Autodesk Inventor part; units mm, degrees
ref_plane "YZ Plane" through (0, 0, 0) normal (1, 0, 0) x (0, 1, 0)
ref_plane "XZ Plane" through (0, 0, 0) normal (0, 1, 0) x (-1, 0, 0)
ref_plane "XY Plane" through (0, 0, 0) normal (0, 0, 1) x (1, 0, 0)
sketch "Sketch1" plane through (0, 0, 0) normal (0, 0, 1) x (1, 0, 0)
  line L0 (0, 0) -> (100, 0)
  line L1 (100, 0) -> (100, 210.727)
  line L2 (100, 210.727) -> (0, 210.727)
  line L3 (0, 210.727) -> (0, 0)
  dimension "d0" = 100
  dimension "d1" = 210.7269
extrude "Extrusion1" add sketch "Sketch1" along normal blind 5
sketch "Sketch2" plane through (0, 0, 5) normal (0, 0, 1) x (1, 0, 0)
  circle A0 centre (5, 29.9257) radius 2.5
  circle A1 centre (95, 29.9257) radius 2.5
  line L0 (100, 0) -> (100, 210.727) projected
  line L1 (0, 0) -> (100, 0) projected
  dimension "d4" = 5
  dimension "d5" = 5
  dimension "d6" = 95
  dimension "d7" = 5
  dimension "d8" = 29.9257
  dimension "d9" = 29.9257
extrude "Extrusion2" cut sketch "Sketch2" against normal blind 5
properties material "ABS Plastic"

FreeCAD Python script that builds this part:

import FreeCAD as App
import Part
import Sketcher
from FreeCAD import Vector


def add_polygon(sketch, points):
    """Adds a closed chain of lines whose ends are joined by coincident constraints."""
    first, n = sketch.GeometryCount, len(points)
    for a, b in zip(points, points[1:] + points[:1]):
        sketch.addGeometry(Part.LineSegment(App.Vector(*a, 0), App.Vector(*b, 0)), False)
    for i in range(n):
        sketch.addConstraint(Sketcher.Constraint("Coincident", first + i, 2, first + (i + 1) % n, 1))

doc = App.newDocument("Part")
body = doc.addObject("PartDesign::Body", "Body")

# Sketch on XY plane
sketch1 = doc.addObject("Sketcher::SketchObject", "Sketch")
body.addObject(sketch1)
sketch1.AttachmentSupport = (doc.XY_Plane, [""])
sketch1.MapMode = "FlatFace"
add_polygon(sketch1, [(0, 210.727), (0, 0), (100, 0), (100, 210.727)])  # lines 0-3
sketch1.addConstraint([
    Sketcher.Constraint("Vertical", 0),
    Sketcher.Constraint("Horizontal", 1),
    Sketcher.Constraint("Vertical", 2),
    Sketcher.Constraint("Horizontal", 3),
    Sketcher.Constraint("Coincident", 0, 2, -1, 1),
    Sketcher.Constraint("DistanceX", 1, 1, 1, 2, 100.0),
    Sketcher.Constraint("DistanceY", 0, 2, 0, 1, 210.727),
])
pad1 = doc.addObject("PartDesign::Pad", "Pad")
body.addObject(pad1)
pad1.Profile = sketch1
pad1.Length = 5

# Sketch on XY plane
sketch2 = doc.addObject("Sketcher::SketchObject", "Sketch001")
body.addObject(sketch2)
sketch2.AttachmentSupport = (doc.XY_Plane, [""])
sketch2.MapMode = "FlatFace"
sketch2.AttachmentOffset = App.Placement(Vector(0, 0, 5), App.Rotation())
sketch2.addGeometry([
    Part.Circle(Vector(5, 29.9257, 0), Vector(0, 0, 1), 2.5),
    Part.Circle(Vector(95, 29.9257, 0), Vector(0, 0, 1), 2.5),
], False)
sketch2.addConstraint([
    Sketcher.Constraint("Equal", 0, 1),
    Sketcher.Constraint("Horizontal", 0, 3, 1, 3),
    Sketcher.Constraint("Diameter", 0, 5.0),
    Sketcher.Constraint("DistanceX", -1, 1, 0, 3, 5.0),
    Sketcher.Constraint("DistanceX", -1, 1, 1, 3, 95.0),
    Sketcher.Constraint("DistanceY", -1, 1, 0, 3, 29.9257),
])
pocket1 = doc.addObject("PartDesign::Pocket", "Pocket")
body.addObject(pocket1)
pocket1.Profile = sketch2
pocket1.Length = 5

doc.recompute()
